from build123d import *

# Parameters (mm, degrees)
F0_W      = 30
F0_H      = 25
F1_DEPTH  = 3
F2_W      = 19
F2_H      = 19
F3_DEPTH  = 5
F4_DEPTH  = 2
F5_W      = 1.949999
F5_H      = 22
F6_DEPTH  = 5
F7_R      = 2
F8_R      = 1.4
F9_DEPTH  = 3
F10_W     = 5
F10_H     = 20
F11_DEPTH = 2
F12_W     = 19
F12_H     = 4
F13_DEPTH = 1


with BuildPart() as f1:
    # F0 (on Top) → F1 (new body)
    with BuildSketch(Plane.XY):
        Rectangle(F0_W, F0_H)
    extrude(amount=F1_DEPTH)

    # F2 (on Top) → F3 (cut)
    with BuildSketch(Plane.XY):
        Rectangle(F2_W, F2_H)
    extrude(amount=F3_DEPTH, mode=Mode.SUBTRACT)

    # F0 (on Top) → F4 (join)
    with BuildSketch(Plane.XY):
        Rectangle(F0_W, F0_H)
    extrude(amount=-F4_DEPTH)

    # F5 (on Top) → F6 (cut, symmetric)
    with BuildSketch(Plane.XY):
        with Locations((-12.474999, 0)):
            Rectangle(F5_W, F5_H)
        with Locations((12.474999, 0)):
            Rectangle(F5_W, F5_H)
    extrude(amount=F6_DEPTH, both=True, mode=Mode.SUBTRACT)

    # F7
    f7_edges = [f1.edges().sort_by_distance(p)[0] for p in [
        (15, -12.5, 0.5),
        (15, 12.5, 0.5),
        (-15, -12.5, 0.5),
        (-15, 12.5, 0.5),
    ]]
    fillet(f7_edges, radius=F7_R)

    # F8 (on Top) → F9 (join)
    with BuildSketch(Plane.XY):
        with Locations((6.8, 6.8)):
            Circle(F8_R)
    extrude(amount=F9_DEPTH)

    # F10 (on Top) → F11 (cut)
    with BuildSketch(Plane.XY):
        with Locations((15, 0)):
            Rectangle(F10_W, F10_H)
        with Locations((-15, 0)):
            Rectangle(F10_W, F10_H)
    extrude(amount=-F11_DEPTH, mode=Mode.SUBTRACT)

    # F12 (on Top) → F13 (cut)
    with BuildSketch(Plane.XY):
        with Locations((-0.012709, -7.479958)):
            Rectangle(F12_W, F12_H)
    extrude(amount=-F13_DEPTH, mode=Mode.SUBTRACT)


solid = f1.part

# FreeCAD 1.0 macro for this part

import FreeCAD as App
import Part
import Sketcher
from FreeCAD import Vector
Q = App.Units.Quantity


def edges_at(feature, points):
    """Names of the edges that pass closest to the given points."""
    edges = feature.Shape.Edges
    near = lambda p: min(range(len(edges)), key=lambda i: edges[i].distToShape(Part.Vertex(*p))[0])
    return sorted({f"Edge{near(p) + 1}" for p in points})


def add_polygon(sketch, points):
    """Adds a closed chain of lines whose ends are joined by coincident constraints."""
    first, n = sketch.GeometryCount, len(points)
    for a, b in zip(points, points[1:] + points[:1]):
        sketch.addGeometry(Part.LineSegment(App.Vector(*a, 0), App.Vector(*b, 0)), False)
    for i in range(n):
        sketch.addConstraint(Sketcher.Constraint("Coincident", first + i, 2, first + (i + 1) % n, 1))

doc = App.newDocument("Part")
params = doc.addObject("Spreadsheet::Sheet", "Params")
for row, (alias, value) in enumerate([
    ("sketch1_width", "30 mm"),
    ("sketch1_height", "25 mm"),
    ("pad1_length", "3 mm"),
    ("sketch2_width", "19 mm"),
    ("pocket1_length", "5 mm"),
    ("sketch3_width", "30 mm"),
    ("sketch3_height", "25 mm"),
    ("pad2_length", "2 mm"),
    ("sketch4_height", "22 mm"),
    ("sketch4_width", "1.949999 mm"),
    ("pocket2_length", "10 mm"),
    ("fillet_radius", "2 mm"),
    ("sketch5_diameter", "2.8 mm"),
    ("pad3_length", "3 mm"),
    ("sketch6_width", "5 mm"),
    ("sketch6_height", "20 mm"),
    ("pocket3_length", "2 mm"),
    ("sketch7_width", "19 mm"),
    ("sketch7_height", "4 mm"),
    ("pocket4_length", "1 mm"),
], start=1):
    params.set(f"A{row}", alias)
    params.set(f"B{row}", "=" + value)
    params.setAlias(f"B{row}", alias)

body = doc.addObject("PartDesign::Body", "Body")

sketch1 = doc.addObject("Sketcher::SketchObject", "Sketch")
body.addObject(sketch1)
sketch1.AttachmentSupport = (doc.XY_Plane, [""])
sketch1.MapMode = "FlatFace"
add_polygon(sketch1, [(-15, 12), (-15, -12), (15, -12), (15, 12)])
sketch1.addConstraint(Sketcher.Constraint("Vertical", 0))
sketch1.addConstraint(Sketcher.Constraint("Horizontal", 1))
sketch1.addConstraint(Sketcher.Constraint("Vertical", 2))
sketch1.addConstraint(Sketcher.Constraint("Horizontal", 3))
sketch1.addConstraint(Sketcher.Constraint("Symmetric", 0, 2, 2, 2, -1, 1))
sketch1.addConstraint(Sketcher.Constraint("DistanceX", 1, 1, 1, 2, Q("30 mm")))
sketch1.addConstraint(Sketcher.Constraint("DistanceY", 0, 2, 0, 1, Q("25 mm")))
sketch1.setExpression("Constraints[9]", "Params.sketch1_width")
sketch1.setExpression("Constraints[10]", "Params.sketch1_height")
pad1 = doc.addObject("PartDesign::Pad", "Pad")
body.addObject(pad1)
pad1.Profile = sketch1
pad1.setExpression("Length", "Params.pad1_length")

sketch2 = doc.addObject("Sketcher::SketchObject", "Sketch001")
body.addObject(sketch2)
sketch2.AttachmentSupport = (doc.XY_Plane, [""])
sketch2.MapMode = "FlatFace"
add_polygon(sketch2, [(-10, 10), (-10, -10), (10, -10), (10, 10)])
sketch2.addConstraint(Sketcher.Constraint("Vertical", 0))
sketch2.addConstraint(Sketcher.Constraint("Horizontal", 1))
sketch2.addConstraint(Sketcher.Constraint("Vertical", 2))
sketch2.addConstraint(Sketcher.Constraint("Horizontal", 3))
sketch2.addConstraint(Sketcher.Constraint("Symmetric", 0, 2, 2, 2, -1, 1))
sketch2.addConstraint(Sketcher.Constraint("Equal", 3, 0))
sketch2.addConstraint(Sketcher.Constraint("DistanceX", 1, 1, 1, 2, Q("19 mm")))
sketch2.setExpression("Constraints[10]", "Params.sketch2_width")
pocket1 = doc.addObject("PartDesign::Pocket", "Pocket")
body.addObject(pocket1)
pocket1.Profile = sketch2
pocket1.setExpression("Length", "Params.pocket1_length")
pocket1.Reversed = True

sketch3 = doc.addObject("Sketcher::SketchObject", "Sketch002")
body.addObject(sketch3)
sketch3.AttachmentSupport = (doc.XY_Plane, [""])
sketch3.MapMode = "FlatFace"
add_polygon(sketch3, [(-15, 12), (-15, -12), (15, -12), (15, 12)])
sketch3.addConstraint(Sketcher.Constraint("Vertical", 0))
sketch3.addConstraint(Sketcher.Constraint("Horizontal", 1))
sketch3.addConstraint(Sketcher.Constraint("Vertical", 2))
sketch3.addConstraint(Sketcher.Constraint("Horizontal", 3))
sketch3.addConstraint(Sketcher.Constraint("Symmetric", 0, 2, 2, 2, -1, 1))
sketch3.addConstraint(Sketcher.Constraint("DistanceX", 1, 1, 1, 2, Q("30 mm")))
sketch3.addConstraint(Sketcher.Constraint("DistanceY", 0, 2, 0, 1, Q("25 mm")))
sketch3.setExpression("Constraints[9]", "Params.sketch3_width")
sketch3.setExpression("Constraints[10]", "Params.sketch3_height")
pad2 = doc.addObject("PartDesign::Pad", "Pad001")
body.addObject(pad2)
pad2.Profile = sketch3
pad2.setExpression("Length", "Params.pad2_length")
pad2.Reversed = True

sketch4 = doc.addObject("Sketcher::SketchObject", "Sketch003")
body.addObject(sketch4)
sketch4.AttachmentSupport = (doc.XY_Plane, [""])
sketch4.MapMode = "FlatFace"
add_polygon(sketch4, [(-13.4, 11), (-13.4, -11), (-11.5, -11), (-11.5, 11)])
add_polygon(sketch4, [(11.5, 11), (11.5, -11), (13.4, -11), (13.4, 11)])
sketch4.addConstraint(Sketcher.Constraint("Vertical", 0))
sketch4.addConstraint(Sketcher.Constraint("Horizontal", 1))
sketch4.addConstraint(Sketcher.Constraint("Vertical", 2))
sketch4.addConstraint(Sketcher.Constraint("Horizontal", 3))
sketch4.addConstraint(Sketcher.Constraint("Vertical", 4))
sketch4.addConstraint(Sketcher.Constraint("Horizontal", 5))
sketch4.addConstraint(Sketcher.Constraint("Vertical", 6))
sketch4.addConstraint(Sketcher.Constraint("Horizontal", 7))
sketch4.addConstraint(Sketcher.Constraint("Symmetric", 2, 2, 4, 2, -1, 1))
sketch4.addConstraint(Sketcher.Constraint("Symmetric", 0, 2, 6, 2, -1, 1))
sketch4.addConstraint(Sketcher.Constraint("Horizontal", 1, 2, 4, 2))
sketch4.addConstraint(Sketcher.Constraint("DistanceY", 0, 2, 0, 1, Q("22 mm")))
sketch4.addConstraint(Sketcher.Constraint("DistanceX", 1, 2, 4, 2, Q("22.999999 mm")))
sketch4.addConstraint(Sketcher.Constraint("DistanceX", 1, 1, 1, 2, Q("1.949999 mm")))
sketch4.setExpression("Constraints[19]", "Params.sketch4_height")
sketch4.setExpression("Constraints[21]", "Params.sketch4_width")
pocket2 = doc.addObject("PartDesign::Pocket", "Pocket001")
body.addObject(pocket2)
pocket2.Profile = sketch4
pocket2.setExpression("Length", "Params.pocket2_length")
pocket2.Midplane = True
doc.recompute()

fillet = doc.addObject("PartDesign::Fillet", "Fillet")
body.addObject(fillet)
fillet.Base = (pocket2, edges_at(pocket2, [
    (15, -12.5, 0.5),
    (15, 12.5, 0.5),
    (-15, -12.5, 0.5),
    (-15, 12.5, 0.5),
]))
fillet.setExpression("Radius", "Params.fillet_radius")

sketch5 = doc.addObject("Sketcher::SketchObject", "Sketch004")
body.addObject(sketch5)
sketch5.AttachmentSupport = (doc.XY_Plane, [""])
sketch5.MapMode = "FlatFace"
sketch5.addGeometry(Part.Circle(Vector(6.8, 6.8, 0), Vector(0, 0, 1), 1.4), False)
sketch5.addConstraint(Sketcher.Constraint("Diameter", 0, Q("2.8 mm")))
sketch5.addConstraint(Sketcher.Constraint("DistanceX", -1, 1, 0, 3, Q("6.8 mm")))
sketch5.addConstraint(Sketcher.Constraint("DistanceY", -1, 1, 0, 3, Q("6.8 mm")))
sketch5.setExpression("Constraints[0]", "Params.sketch5_diameter")
pad3 = doc.addObject("PartDesign::Pad", "Pad002")
body.addObject(pad3)
pad3.Profile = sketch5
pad3.setExpression("Length", "Params.pad3_length")

sketch6 = doc.addObject("Sketcher::SketchObject", "Sketch005")
body.addObject(sketch6)
sketch6.AttachmentSupport = (doc.XY_Plane, [""])
sketch6.MapMode = "FlatFace"
add_polygon(sketch6, [(12, 10), (12, -10), (18, -10), (18, 10)])
add_polygon(sketch6, [(-18, 10), (-18, -10), (-12, -10), (-12, 10)])
sketch6.addConstraint(Sketcher.Constraint("Vertical", 0))
sketch6.addConstraint(Sketcher.Constraint("Horizontal", 1))
sketch6.addConstraint(Sketcher.Constraint("Vertical", 2))
sketch6.addConstraint(Sketcher.Constraint("Horizontal", 3))
sketch6.addConstraint(Sketcher.Constraint("Vertical", 4))
sketch6.addConstraint(Sketcher.Constraint("Horizontal", 5))
sketch6.addConstraint(Sketcher.Constraint("Vertical", 6))
sketch6.addConstraint(Sketcher.Constraint("Horizontal", 7))
sketch6.addConstraint(Sketcher.Constraint("Symmetric", 2, 2, 4, 2, -1, 1))
sketch6.addConstraint(Sketcher.Constraint("Symmetric", 0, 2, 6, 2, -1, 1))
sketch6.addConstraint(Sketcher.Constraint("Horizontal", 1, 2, 4, 2))
sketch6.addConstraint(Sketcher.Constraint("DistanceX", 1, 1, 1, 2, Q("5 mm")))
sketch6.addConstraint(Sketcher.Constraint("DistanceY", 0, 2, 0, 1, Q("20 mm")))
sketch6.addConstraint(Sketcher.Constraint("DistanceX", 4, 2, 0, 2, Q("30 mm")))
sketch6.setExpression("Constraints[19]", "Params.sketch6_width")
sketch6.setExpression("Constraints[20]", "Params.sketch6_height")
pocket3 = doc.addObject("PartDesign::Pocket", "Pocket002")
body.addObject(pocket3)
pocket3.Profile = sketch6
pocket3.setExpression("Length", "Params.pocket3_length")

sketch7 = doc.addObject("Sketcher::SketchObject", "Sketch006")
body.addObject(sketch7)
sketch7.AttachmentSupport = (doc.XY_Plane, [""])
sketch7.MapMode = "FlatFace"
add_polygon(sketch7, [(-9.5, -5.5), (-9.5, -9.5), (9.5, -9.5), (9.5, -5.5)])
sketch7.addConstraint(Sketcher.Constraint("Vertical", 0))
sketch7.addConstraint(Sketcher.Constraint("Horizontal", 1))
sketch7.addConstraint(Sketcher.Constraint("Vertical", 2))
sketch7.addConstraint(Sketcher.Constraint("Horizontal", 3))
sketch7.addConstraint(Sketcher.Constraint("DistanceX", 1, 1, 1, 2, Q("19 mm")))
sketch7.addConstraint(Sketcher.Constraint("DistanceY", 0, 2, 0, 1, Q("4 mm")))
sketch7.addConstraint(Sketcher.Constraint("DistanceX", 0, 2, -1, 1, Q("9.512709 mm")))
sketch7.addConstraint(Sketcher.Constraint("DistanceY", 0, 2, -1, 1, Q("9.479958 mm")))
sketch7.setExpression("Constraints[8]", "Params.sketch7_width")
sketch7.setExpression("Constraints[9]", "Params.sketch7_height")
pocket4 = doc.addObject("PartDesign::Pocket", "Pocket003")
body.addObject(pocket4)
pocket4.Profile = sketch7
pocket4.setExpression("Length", "Params.pocket4_length")

doc.recompute()
